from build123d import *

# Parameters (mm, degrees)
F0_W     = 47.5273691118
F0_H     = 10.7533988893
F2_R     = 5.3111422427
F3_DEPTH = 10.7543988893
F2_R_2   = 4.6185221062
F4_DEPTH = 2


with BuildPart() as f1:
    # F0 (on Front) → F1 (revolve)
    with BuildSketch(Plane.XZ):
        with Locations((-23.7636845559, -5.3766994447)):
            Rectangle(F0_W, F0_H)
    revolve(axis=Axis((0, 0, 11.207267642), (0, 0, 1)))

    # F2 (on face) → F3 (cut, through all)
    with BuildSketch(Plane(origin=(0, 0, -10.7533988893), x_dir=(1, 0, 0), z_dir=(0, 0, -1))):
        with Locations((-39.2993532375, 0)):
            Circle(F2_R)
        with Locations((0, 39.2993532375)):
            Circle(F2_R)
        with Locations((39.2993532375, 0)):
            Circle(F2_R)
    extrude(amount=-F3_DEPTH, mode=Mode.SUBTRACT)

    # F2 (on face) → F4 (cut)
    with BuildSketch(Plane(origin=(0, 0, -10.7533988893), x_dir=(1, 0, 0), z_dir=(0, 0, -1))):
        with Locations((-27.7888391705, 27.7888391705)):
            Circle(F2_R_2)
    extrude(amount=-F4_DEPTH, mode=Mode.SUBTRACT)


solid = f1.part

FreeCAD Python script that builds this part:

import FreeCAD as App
import Part
import Sketcher

V = App.Vector
Q = App.Units.Quantity


def add_polygon(sketch, points):
    """Adds a closed chain of lines whose ends are joined by coincident constraints."""
    first, n = sketch.GeometryCount, len(points)
    for a, b in zip(points, points[1:] + points[:1]):
        sketch.addGeometry(Part.LineSegment(App.Vector(*a, 0), App.Vector(*b, 0)), False)
    for i in range(n):
        sketch.addConstraint(Sketcher.Constraint("Coincident", first + i, 2, first + (i + 1) % n, 1))

doc = App.newDocument("Part")
params = doc.addObject("Spreadsheet::Sheet", "Params")
for row, (alias, value) in enumerate([
    ("revolution_angle", "360 deg"),
    ("pocket2_length", "2 mm"),
], start=1):
    params.set(f"A{row}", alias)
    params.set(f"B{row}", "=" + value)
    params.setAlias(f"B{row}", alias)

body = doc.addObject("PartDesign::Body", "Body")

# Sketch on XZ plane
sketch1 = body.newObject("Sketcher::SketchObject", "Sketch")
sketch1.AttachmentSupport = (doc.getObject("XZ_Plane"), [""])
sketch1.MapMode = "FlatFace"
add_polygon(sketch1, [(-47.527369, 0), (-47.527369, -10.753399), (0, -10.753399), (0, 0)])  # lines 0-3
sketch1.addConstraint([
    Sketcher.Constraint("Vertical", 0),
    Sketcher.Constraint("Horizontal", 1),
    Sketcher.Constraint("Vertical", 2),
    Sketcher.Constraint("Horizontal", 3),
    Sketcher.Constraint("Coincident", 2, 2, -1, 1),
    Sketcher.Constraint("DistanceY", 0, 2, 0, 1, Q("10.753399 mm")),
    Sketcher.Constraint("DistanceX", 1, 1, 1, 2, Q("47.527369 mm")),
])
revolution = body.newObject("PartDesign::Revolution", "Revolution")
revolution.Profile = sketch1
revolution.ReferenceAxis = (sketch1, ["V_Axis"])
revolution.setExpression("Angle", "Params.revolution_angle")

# Sketch on XY plane
sketch2 = body.newObject("Sketcher::SketchObject", "Sketch001")
sketch2.AttachmentSupport = (doc.getObject("XY_Plane"), [""])
sketch2.MapMode = "FlatFace"
sketch2.AttachmentOffset = App.Placement(V(0, 0, -10.753399), App.Rotation())
sketch2.addGeometry([
    Part.Circle(V(-39.299353, 0, 0), V(0, 0, 1), 5.311142),
    Part.Circle(V(0, -39.299353, 0), V(0, 0, 1), 5.311142),
    Part.Circle(V(39.299353, 0, 0), V(0, 0, 1), 5.311142),
], False)
sketch2.addConstraint([
    Sketcher.Constraint("Equal", 0, 1),
    Sketcher.Constraint("Equal", 1, 2),
    Sketcher.Constraint("Symmetric", 0, 3, 2, 3, -1, 1),
    Sketcher.Constraint("PointOnObject", 0, 3, -1),
    Sketcher.Constraint("PointOnObject", 1, 3, -2),
    Sketcher.Constraint("Diameter", 0, Q("10.622284 mm")),
    Sketcher.Constraint("DistanceX", 0, 3, -1, 1, Q("39.299353 mm")),
    Sketcher.Constraint("DistanceY", 1, 3, -1, 1, Q("39.299353 mm")),
])
pocket1 = body.newObject("PartDesign::Pocket", "Pocket")
pocket1.Profile = sketch2
pocket1.Type = "ThroughAll"
pocket1.Reversed = True

# Sketch on XY plane
sketch3 = body.newObject("Sketcher::SketchObject", "Sketch002")
sketch3.AttachmentSupport = (doc.getObject("XY_Plane"), [""])
sketch3.MapMode = "FlatFace"
sketch3.AttachmentOffset = App.Placement(V(0, 0, -10.753399), App.Rotation())
sketch3.addGeometry(Part.Circle(V(-27.788839, -27.788839, 0), V(0, 0, 1), 4.618522), False)
sketch3.addConstraint([
    Sketcher.Constraint("Diameter", 0, Q("9.237044 mm")),
    Sketcher.Constraint("DistanceX", 0, 3, -1, 1, Q("27.788839 mm")),
    Sketcher.Constraint("DistanceY", 0, 3, -1, 1, Q("27.788839 mm")),
])
pocket2 = body.newObject("PartDesign::Pocket", "Pocket001")
pocket2.Profile = sketch3
pocket2.setExpression("Length", "Params.pocket2_length")
pocket2.Reversed = True

doc.recompute()
